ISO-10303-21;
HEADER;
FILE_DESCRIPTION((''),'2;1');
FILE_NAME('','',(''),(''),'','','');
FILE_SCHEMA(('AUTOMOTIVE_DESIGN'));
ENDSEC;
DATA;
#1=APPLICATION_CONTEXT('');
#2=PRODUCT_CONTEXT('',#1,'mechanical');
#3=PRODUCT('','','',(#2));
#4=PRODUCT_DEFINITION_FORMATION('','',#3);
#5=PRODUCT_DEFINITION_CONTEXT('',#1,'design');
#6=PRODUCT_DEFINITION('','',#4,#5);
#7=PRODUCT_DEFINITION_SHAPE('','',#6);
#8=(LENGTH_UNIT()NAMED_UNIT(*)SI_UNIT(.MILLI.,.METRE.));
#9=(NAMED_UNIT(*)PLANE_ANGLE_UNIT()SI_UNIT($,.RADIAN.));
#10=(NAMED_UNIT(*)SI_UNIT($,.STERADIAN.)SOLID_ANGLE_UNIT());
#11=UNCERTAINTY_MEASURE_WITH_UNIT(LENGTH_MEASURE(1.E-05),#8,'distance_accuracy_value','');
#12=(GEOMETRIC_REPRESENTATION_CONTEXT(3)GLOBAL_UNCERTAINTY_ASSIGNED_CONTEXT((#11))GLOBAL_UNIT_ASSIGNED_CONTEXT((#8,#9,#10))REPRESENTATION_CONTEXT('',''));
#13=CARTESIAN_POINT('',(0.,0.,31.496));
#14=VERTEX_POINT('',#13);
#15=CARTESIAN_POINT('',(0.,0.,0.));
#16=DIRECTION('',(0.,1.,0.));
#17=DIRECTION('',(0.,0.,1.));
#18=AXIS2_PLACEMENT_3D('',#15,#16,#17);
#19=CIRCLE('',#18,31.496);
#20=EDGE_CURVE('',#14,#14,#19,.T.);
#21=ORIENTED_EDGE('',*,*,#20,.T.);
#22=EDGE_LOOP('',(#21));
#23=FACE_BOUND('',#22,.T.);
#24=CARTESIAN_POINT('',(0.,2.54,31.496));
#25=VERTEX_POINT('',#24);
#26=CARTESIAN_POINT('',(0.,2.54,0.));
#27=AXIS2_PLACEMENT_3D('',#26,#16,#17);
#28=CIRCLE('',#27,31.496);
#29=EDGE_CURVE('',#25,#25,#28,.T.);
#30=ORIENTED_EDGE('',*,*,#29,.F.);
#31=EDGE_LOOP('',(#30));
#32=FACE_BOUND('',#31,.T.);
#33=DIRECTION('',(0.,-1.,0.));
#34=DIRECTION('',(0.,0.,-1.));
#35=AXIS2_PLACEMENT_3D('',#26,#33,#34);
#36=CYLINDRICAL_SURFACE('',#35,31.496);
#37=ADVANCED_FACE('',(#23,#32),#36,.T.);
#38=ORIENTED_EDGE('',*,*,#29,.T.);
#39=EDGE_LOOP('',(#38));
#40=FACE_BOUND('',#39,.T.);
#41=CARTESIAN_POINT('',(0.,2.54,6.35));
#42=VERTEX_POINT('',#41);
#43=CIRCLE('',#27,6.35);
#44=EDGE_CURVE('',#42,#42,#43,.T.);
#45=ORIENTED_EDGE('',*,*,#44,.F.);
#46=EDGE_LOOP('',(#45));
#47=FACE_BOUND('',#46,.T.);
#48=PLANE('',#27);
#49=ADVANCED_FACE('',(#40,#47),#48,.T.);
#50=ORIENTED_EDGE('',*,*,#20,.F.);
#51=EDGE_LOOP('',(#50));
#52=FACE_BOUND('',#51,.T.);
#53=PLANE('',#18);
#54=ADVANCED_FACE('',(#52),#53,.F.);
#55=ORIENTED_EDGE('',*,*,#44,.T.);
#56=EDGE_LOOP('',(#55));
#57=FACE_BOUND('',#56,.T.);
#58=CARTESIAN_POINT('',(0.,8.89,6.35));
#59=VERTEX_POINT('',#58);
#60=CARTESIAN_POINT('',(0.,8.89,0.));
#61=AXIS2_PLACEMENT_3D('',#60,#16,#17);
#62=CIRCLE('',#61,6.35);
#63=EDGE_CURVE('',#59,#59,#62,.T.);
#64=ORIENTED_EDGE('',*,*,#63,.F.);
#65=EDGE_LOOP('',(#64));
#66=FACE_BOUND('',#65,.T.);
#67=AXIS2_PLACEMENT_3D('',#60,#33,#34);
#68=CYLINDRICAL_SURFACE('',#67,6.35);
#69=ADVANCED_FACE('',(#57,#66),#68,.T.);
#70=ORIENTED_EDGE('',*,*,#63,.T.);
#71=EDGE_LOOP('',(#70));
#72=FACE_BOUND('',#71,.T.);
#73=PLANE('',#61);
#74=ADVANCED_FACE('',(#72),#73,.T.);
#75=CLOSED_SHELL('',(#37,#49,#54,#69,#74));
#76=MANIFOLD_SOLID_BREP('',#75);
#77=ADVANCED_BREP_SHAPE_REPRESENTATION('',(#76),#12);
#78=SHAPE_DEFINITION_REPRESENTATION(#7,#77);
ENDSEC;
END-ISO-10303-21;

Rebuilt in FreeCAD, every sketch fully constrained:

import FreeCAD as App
import Part
import Sketcher
Q = App.Units.Quantity

doc = App.newDocument("Part")
body = doc.addObject("PartDesign::Body", "Body")

# Sketch on XZ plane
sketch1 = body.newObject("Sketcher::SketchObject", "Sketch")
sketch1.AttachmentSupport = (doc.getObject("XZ_Plane"), [""])
sketch1.MapMode = "FlatFace"
sketch1.addGeometry(Part.Circle(App.Vector(0, 0, 0), App.Vector(0, 0, 1), 31.496), False)
sketch1.addConstraint(Sketcher.Constraint("Coincident", 0, 3, -1, 1))
sketch1.addConstraint(Sketcher.Constraint("Diameter", 0, Q("2.48 in")))
pad1 = body.newObject("PartDesign::Pad", "Pad")
pad1.Profile = sketch1
pad1.Length = Q("0.1 in")
pad1.Reversed = True

# Sketch on XZ plane
sketch2 = body.newObject("Sketcher::SketchObject", "Sketch001")
sketch2.AttachmentSupport = (doc.getObject("XZ_Plane"), [""])
sketch2.MapMode = "FlatFace"
sketch2.AttachmentOffset = App.Placement(App.Vector(0, 0, -0.1 * 25.4), App.Rotation())
sketch2.addGeometry(Part.Circle(App.Vector(0, 0, 0), App.Vector(0, 0, 1), 6.35), False)
sketch2.addConstraint(Sketcher.Constraint("Coincident", 0, 3, -1, 1))
sketch2.addConstraint(Sketcher.Constraint("Diameter", 0, Q("0.5 in")))
pad2 = body.newObject("PartDesign::Pad", "Pad001")
pad2.Profile = sketch2
pad2.Length = Q("0.25 in")
pad2.Reversed = True

doc.recompute()
